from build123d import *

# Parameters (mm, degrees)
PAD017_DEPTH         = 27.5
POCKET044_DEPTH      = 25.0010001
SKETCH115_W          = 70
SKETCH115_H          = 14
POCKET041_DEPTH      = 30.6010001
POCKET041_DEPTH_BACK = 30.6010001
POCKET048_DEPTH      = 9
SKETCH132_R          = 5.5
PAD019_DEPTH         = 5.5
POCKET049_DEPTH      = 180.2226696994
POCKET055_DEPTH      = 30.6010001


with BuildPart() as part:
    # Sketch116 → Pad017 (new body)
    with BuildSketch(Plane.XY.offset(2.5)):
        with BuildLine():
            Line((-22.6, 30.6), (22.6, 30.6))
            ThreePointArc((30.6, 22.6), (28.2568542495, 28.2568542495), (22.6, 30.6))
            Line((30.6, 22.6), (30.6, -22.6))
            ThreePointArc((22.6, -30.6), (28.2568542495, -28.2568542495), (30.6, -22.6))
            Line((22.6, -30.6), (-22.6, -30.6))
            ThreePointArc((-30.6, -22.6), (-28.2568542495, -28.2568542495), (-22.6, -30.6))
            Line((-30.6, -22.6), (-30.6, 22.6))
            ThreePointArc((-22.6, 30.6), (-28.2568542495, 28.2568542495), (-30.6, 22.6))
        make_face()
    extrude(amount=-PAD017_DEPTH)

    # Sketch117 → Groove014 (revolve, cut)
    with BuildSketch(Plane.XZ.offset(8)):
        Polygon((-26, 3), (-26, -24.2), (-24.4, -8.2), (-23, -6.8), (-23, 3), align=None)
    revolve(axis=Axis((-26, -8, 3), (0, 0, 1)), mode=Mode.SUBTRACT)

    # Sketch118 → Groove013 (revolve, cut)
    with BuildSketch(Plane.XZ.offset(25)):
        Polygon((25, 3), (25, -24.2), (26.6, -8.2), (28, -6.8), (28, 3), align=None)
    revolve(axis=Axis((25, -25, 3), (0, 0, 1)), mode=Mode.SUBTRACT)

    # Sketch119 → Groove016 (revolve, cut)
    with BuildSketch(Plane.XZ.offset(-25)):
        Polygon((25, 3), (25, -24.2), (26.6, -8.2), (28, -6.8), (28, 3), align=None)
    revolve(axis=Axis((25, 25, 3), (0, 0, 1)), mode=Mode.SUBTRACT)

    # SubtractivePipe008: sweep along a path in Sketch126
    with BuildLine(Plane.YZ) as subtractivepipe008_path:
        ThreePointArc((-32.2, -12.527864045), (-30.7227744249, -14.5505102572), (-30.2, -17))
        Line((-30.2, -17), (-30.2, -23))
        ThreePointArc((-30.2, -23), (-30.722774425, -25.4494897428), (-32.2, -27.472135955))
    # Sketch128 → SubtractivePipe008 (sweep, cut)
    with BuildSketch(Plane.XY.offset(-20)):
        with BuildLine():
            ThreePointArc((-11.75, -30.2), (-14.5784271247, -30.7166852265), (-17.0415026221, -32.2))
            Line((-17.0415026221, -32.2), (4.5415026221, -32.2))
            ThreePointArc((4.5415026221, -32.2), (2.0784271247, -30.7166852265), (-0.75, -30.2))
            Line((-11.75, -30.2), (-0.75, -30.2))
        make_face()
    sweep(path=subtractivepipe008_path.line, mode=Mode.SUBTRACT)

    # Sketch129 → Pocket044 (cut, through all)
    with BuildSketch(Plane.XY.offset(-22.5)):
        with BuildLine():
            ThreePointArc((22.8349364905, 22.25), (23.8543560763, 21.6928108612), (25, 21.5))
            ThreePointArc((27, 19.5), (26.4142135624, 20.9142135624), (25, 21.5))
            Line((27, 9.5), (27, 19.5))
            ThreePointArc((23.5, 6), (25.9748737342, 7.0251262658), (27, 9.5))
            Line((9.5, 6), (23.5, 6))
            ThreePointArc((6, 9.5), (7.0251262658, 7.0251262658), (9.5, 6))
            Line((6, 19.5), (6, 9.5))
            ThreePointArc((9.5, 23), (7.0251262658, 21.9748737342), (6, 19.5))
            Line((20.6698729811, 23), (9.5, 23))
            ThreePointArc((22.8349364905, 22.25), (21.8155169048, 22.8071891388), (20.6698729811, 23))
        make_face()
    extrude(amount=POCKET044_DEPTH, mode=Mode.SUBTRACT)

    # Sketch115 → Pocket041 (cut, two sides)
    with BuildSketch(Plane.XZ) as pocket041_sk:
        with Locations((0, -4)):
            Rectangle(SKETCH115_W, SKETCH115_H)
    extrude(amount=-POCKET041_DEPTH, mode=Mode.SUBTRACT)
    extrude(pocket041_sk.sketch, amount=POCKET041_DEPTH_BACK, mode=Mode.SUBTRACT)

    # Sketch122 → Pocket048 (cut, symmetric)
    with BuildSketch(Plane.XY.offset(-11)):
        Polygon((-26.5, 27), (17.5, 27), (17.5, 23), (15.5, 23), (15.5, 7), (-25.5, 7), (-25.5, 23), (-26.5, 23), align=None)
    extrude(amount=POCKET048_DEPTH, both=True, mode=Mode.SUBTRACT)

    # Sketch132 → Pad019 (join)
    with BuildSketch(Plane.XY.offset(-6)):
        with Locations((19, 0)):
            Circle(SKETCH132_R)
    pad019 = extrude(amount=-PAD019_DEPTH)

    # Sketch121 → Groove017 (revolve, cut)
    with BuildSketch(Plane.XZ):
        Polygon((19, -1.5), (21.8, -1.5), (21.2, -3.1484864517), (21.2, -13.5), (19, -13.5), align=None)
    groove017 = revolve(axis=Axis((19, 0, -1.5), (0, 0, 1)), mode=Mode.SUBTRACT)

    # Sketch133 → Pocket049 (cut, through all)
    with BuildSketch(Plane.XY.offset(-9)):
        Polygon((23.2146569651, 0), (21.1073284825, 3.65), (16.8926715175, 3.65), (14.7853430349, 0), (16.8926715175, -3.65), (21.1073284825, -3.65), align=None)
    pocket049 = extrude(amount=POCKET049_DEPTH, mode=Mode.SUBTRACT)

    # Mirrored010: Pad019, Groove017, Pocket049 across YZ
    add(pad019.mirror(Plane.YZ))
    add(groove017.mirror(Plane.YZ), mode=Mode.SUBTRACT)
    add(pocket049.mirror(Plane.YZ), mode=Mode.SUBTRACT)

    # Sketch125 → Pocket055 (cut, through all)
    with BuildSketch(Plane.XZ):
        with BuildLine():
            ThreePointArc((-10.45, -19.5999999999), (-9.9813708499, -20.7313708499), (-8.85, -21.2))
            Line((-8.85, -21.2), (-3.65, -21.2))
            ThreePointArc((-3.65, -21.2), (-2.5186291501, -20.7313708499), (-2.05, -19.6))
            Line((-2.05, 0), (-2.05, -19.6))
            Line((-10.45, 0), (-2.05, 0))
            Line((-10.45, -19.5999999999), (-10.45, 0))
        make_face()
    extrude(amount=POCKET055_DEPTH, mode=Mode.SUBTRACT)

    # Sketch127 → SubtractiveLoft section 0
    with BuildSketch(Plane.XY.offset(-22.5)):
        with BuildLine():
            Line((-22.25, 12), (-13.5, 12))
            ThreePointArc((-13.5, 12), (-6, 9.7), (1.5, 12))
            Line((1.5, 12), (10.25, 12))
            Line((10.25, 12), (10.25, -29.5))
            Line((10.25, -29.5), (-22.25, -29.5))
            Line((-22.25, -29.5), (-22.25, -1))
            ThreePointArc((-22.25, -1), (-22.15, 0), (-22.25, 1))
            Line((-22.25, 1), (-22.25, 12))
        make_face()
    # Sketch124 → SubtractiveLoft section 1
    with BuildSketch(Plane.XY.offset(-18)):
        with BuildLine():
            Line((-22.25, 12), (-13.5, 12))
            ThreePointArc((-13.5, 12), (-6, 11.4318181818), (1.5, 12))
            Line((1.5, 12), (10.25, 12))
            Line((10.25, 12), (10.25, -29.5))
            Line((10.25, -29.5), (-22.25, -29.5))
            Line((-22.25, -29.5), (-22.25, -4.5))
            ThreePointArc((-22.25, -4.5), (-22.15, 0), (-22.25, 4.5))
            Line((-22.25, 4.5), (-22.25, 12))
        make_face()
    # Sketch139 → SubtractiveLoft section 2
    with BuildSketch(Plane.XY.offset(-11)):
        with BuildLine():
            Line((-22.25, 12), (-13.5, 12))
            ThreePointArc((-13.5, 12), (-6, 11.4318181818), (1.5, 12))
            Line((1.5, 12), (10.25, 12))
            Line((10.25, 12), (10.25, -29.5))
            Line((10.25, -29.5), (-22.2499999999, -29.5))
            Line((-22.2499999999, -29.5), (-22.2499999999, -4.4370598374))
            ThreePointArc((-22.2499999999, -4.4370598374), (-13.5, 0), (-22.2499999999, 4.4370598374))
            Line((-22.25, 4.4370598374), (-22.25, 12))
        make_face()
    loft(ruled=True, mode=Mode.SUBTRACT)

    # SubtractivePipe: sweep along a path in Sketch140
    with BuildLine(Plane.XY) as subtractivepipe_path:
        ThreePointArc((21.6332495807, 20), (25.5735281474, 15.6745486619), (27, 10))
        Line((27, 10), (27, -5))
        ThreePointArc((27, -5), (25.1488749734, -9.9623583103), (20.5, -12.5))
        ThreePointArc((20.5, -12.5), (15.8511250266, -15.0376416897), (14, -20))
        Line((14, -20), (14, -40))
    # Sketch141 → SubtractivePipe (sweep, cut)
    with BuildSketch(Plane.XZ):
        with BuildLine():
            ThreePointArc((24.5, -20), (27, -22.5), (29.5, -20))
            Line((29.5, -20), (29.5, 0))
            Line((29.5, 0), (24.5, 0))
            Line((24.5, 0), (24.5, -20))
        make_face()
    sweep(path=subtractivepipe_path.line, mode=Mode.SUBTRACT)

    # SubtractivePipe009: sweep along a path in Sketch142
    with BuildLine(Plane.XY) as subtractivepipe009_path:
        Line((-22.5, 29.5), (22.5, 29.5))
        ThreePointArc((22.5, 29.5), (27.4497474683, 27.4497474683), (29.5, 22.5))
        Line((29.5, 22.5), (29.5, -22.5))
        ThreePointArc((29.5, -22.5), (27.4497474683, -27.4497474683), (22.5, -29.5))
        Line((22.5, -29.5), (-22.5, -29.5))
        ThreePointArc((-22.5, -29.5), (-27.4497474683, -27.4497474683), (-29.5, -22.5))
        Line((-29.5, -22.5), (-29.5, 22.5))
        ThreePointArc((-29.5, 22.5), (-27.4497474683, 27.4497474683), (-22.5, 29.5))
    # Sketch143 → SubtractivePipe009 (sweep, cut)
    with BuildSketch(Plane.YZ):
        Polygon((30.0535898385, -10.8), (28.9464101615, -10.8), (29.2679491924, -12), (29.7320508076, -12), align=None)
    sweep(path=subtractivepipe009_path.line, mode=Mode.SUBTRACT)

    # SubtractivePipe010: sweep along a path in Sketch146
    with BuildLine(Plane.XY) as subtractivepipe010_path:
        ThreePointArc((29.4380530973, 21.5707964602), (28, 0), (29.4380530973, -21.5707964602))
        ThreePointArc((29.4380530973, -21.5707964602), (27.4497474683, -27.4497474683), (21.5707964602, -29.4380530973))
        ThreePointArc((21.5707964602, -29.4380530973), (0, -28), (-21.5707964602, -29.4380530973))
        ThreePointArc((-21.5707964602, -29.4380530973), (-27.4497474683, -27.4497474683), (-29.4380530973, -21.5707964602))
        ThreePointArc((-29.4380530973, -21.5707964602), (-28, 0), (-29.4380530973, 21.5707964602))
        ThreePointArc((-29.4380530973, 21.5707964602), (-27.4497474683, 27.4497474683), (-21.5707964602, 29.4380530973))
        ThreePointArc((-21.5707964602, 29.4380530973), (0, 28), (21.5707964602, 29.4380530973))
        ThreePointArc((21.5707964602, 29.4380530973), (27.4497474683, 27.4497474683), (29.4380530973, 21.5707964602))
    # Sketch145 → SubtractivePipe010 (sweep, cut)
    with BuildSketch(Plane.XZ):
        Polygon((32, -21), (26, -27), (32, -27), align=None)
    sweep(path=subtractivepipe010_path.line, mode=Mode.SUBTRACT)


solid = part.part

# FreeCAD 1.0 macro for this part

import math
import FreeCAD as App
import Part
import Sketcher

V = App.Vector
Q = App.Units.Quantity


def add_polygon(sketch, points):
    """Adds a closed chain of lines whose ends are joined by coincident constraints."""
    first, n = sketch.GeometryCount, len(points)
    for a, b in zip(points, points[1:] + points[:1]):
        sketch.addGeometry(Part.LineSegment(App.Vector(*a, 0), App.Vector(*b, 0)), False)
    for i in range(n):
        sketch.addConstraint(Sketcher.Constraint("Coincident", first + i, 2, first + (i + 1) % n, 1))

doc = App.newDocument("Part")
body = doc.addObject("PartDesign::Body", "Body")

sketch1 = doc.addObject("Sketcher::SketchObject", "Sketch")
body.addObject(sketch1)
sketch1.AttachmentSupport = (doc.XY_Plane, [""])
sketch1.MapMode = "FlatFace"
sketch1.AttachmentOffset = App.Placement(V(0, 0, 2.5), App.Rotation())
sketch1.addGeometry(Part.LineSegment(V(22.6, 30.6, 0), V(-22.6, 30.6, 0)), False)
sketch1.addGeometry(Part.ArcOfCircle(Part.Circle(V(-22.6, 22.6, 0), V(0, 0, 1), 8), math.radians(90), math.radians(180)), False)
sketch1.addGeometry(Part.LineSegment(V(-30.6, 22.6, 0), V(-30.6, -22.6, 0)), False)
sketch1.addGeometry(Part.ArcOfCircle(Part.Circle(V(-22.6, -22.6, 0), V(0, 0, 1), 8), math.radians(180), math.radians(270)), False)
sketch1.addGeometry(Part.LineSegment(V(-22.6, -30.6, 0), V(22.6, -30.6, 0)), False)
sketch1.addGeometry(Part.ArcOfCircle(Part.Circle(V(22.6, -22.6, 0), V(0, 0, 1), 8), math.radians(-90), math.radians(0)), False)
sketch1.addGeometry(Part.LineSegment(V(30.6, -22.6, 0), V(30.6, 22.6, 0)), False)
sketch1.addGeometry(Part.ArcOfCircle(Part.Circle(V(22.6, 22.6, 0), V(0, 0, 1), 8), math.radians(0), math.radians(90)), False)
sketch1.addConstraint(Sketcher.Constraint("Tangent", 0, 2, 1, 1))
sketch1.addConstraint(Sketcher.Constraint("Tangent", 1, 2, 2, 1))
sketch1.addConstraint(Sketcher.Constraint("Tangent", 2, 2, 3, 1))
sketch1.addConstraint(Sketcher.Constraint("Tangent", 3, 2, 4, 1))
sketch1.addConstraint(Sketcher.Constraint("Tangent", 4, 2, 5, 1))
sketch1.addConstraint(Sketcher.Constraint("Tangent", 5, 2, 6, 1))
sketch1.addConstraint(Sketcher.Constraint("Tangent", 6, 2, 7, 1))
sketch1.addConstraint(Sketcher.Constraint("Tangent", 7, 2, 0, 1))
sketch1.addConstraint(Sketcher.Constraint("Horizontal", 0))
sketch1.addConstraint(Sketcher.Constraint("Vertical", 2))
sketch1.addConstraint(Sketcher.Constraint("Horizontal", 4))
sketch1.addConstraint(Sketcher.Constraint("Vertical", 6))
sketch1.addConstraint(Sketcher.Constraint("Equal", 1, 3))
sketch1.addConstraint(Sketcher.Constraint("Equal", 3, 5))
sketch1.addConstraint(Sketcher.Constraint("Equal", 5, 7))
sketch1.addConstraint(Sketcher.Constraint("Symmetric", 1, 3, 5, 3, -1, 1))
sketch1.addConstraint(Sketcher.Constraint("Equal", 4, 2))
sketch1.addConstraint(Sketcher.Constraint("Radius", 1, 8.0))
sketch1.addConstraint(Sketcher.Constraint("DistanceX", 0, 2, 0, 1, 45.2))
pad1 = doc.addObject("PartDesign::Pad", "Pad")
body.addObject(pad1)
pad1.Profile = sketch1
pad1.Length = 27.5
pad1.Reversed = True

sketch2 = doc.addObject("Sketcher::SketchObject", "Sketch001")
body.addObject(sketch2)
sketch2.AttachmentSupport = (doc.XZ_Plane, [""])
sketch2.MapMode = "FlatFace"
sketch2.AttachmentOffset = App.Placement(V(0, 0, 8), App.Rotation())
add_polygon(sketch2, [(-26, 3), (-26, -24.2), (-24.4, -8.2), (-23, -6.8), (-23, 3)])
sketch2.addGeometry(Part.LineSegment(V(-26, -24.2, 0), V(-26, 3, 0)), True)
sketch2.addConstraint(Sketcher.Constraint("Vertical", 0))
sketch2.addConstraint(Sketcher.Constraint("Vertical", 3))
sketch2.addConstraint(Sketcher.Constraint("Horizontal", 4))
sketch2.addConstraint(Sketcher.Constraint("Vertical", 5))
sketch2.addConstraint(Sketcher.Constraint("Coincident", 5, 1, 0, 2))
sketch2.addConstraint(Sketcher.Constraint("Horizontal", 3, 2, 5, 2))
sketch2.addConstraint(Sketcher.Constraint("DistanceX", 4, 2, 4, 1, 3.0))
sketch2.addConstraint(Sketcher.Constraint("Angle", 2, Q("45 deg")))
sketch2.addConstraint(Sketcher.Constraint("DistanceY", 0, 2, 0, 1, 27.2))
sketch2.addConstraint(Sketcher.Constraint("DistanceY", 3, 1, 3, 2, 9.8))
sketch2.addConstraint(Sketcher.Constraint("DistanceX", 0, 2, -1, 1, 26.0))
sketch2.addConstraint(Sketcher.Constraint("DistanceY", -1, 1, 3, 2, 3.0))
sketch2.addConstraint(Sketcher.Constraint("DistanceY", 0, 2, 1, 2, 16.0))
groove = doc.addObject("PartDesign::Groove", "Groove")
body.addObject(groove)
groove.Profile = sketch2
groove.ReferenceAxis = (sketch2, ["Axis0"])
groove.Angle = 360

sketch3 = doc.addObject("Sketcher::SketchObject", "Sketch002")
body.addObject(sketch3)
sketch3.AttachmentSupport = (doc.XZ_Plane, [""])
sketch3.MapMode = "FlatFace"
sketch3.AttachmentOffset = App.Placement(V(0, 0, 25), App.Rotation())
add_polygon(sketch3, [(25, 3), (25, -24.2), (26.6, -8.2), (28, -6.8), (28, 3)])
sketch3.addGeometry(Part.LineSegment(V(25, -24.2, 0), V(25, 3, 0)), True)
sketch3.addConstraint(Sketcher.Constraint("Vertical", 0))
sketch3.addConstraint(Sketcher.Constraint("Vertical", 3))
sketch3.addConstraint(Sketcher.Constraint("Horizontal", 4))
sketch3.addConstraint(Sketcher.Constraint("Vertical", 5))
sketch3.addConstraint(Sketcher.Constraint("Coincident", 5, 1, 0, 2))
sketch3.addConstraint(Sketcher.Constraint("Horizontal", 3, 2, 5, 2))
sketch3.addConstraint(Sketcher.Constraint("DistanceX", 4, 2, 4, 1, 3.0))
sketch3.addConstraint(Sketcher.Constraint("Angle", 2, Q("45 deg")))
sketch3.addConstraint(Sketcher.Constraint("DistanceY", 0, 2, 0, 1, 27.2))
sketch3.addConstraint(Sketcher.Constraint("DistanceY", 3, 1, 3, 2, 9.8))
sketch3.addConstraint(Sketcher.Constraint("DistanceX", -1, 1, 0, 2, 25.0))
sketch3.addConstraint(Sketcher.Constraint("DistanceY", -1, 1, 3, 2, 3.0))
sketch3.addConstraint(Sketcher.Constraint("DistanceY", 0, 2, 1, 2, 16.0))
groove2 = doc.addObject("PartDesign::Groove", "Groove001")
body.addObject(groove2)
groove2.Profile = sketch3
groove2.ReferenceAxis = (sketch3, ["Axis0"])
groove2.Angle = 360

sketch4 = doc.addObject("Sketcher::SketchObject", "Sketch003")
body.addObject(sketch4)
sketch4.AttachmentSupport = (doc.XZ_Plane, [""])
sketch4.MapMode = "FlatFace"
sketch4.AttachmentOffset = App.Placement(V(0, 0, -25), App.Rotation())
add_polygon(sketch4, [(25, 3), (25, -24.2), (26.6, -8.2), (28, -6.8), (28, 3)])
sketch4.addGeometry(Part.LineSegment(V(25, -24.2, 0), V(25, 3, 0)), True)
sketch4.addConstraint(Sketcher.Constraint("Vertical", 0))
sketch4.addConstraint(Sketcher.Constraint("Vertical", 3))
sketch4.addConstraint(Sketcher.Constraint("Horizontal", 4))
sketch4.addConstraint(Sketcher.Constraint("Vertical", 5))
sketch4.addConstraint(Sketcher.Constraint("Coincident", 5, 1, 0, 2))
sketch4.addConstraint(Sketcher.Constraint("Horizontal", 3, 2, 5, 2))
sketch4.addConstraint(Sketcher.Constraint("DistanceX", 4, 2, 4, 1, 3.0))
sketch4.addConstraint(Sketcher.Constraint("Angle", 2, Q("45 deg")))
sketch4.addConstraint(Sketcher.Constraint("DistanceY", 0, 2, 0, 1, 27.2))
sketch4.addConstraint(Sketcher.Constraint("DistanceY", 3, 1, 3, 2, 9.8))
sketch4.addConstraint(Sketcher.Constraint("DistanceX", -1, 1, 0, 2, 25.0))
sketch4.addConstraint(Sketcher.Constraint("DistanceY", -1, 1, 3, 2, 3.0))
sketch4.addConstraint(Sketcher.Constraint("DistanceY", 0, 2, 1, 2, 16.0))
groove3 = doc.addObject("PartDesign::Groove", "Groove002")
body.addObject(groove3)
groove3.Profile = sketch4
groove3.ReferenceAxis = (sketch4, ["Axis0"])
groove3.Angle = 360

sketch5 = doc.addObject("Sketcher::SketchObject", "Sketch004")
body.addObject(sketch5)
sketch5.AttachmentSupport = (doc.XY_Plane, [""])
sketch5.MapMode = "FlatFace"
sketch5.AttachmentOffset = App.Placement(V(0, 0, -20), App.Rotation())
sketch5.addGeometry(Part.ArcOfCircle(Part.Circle(V(-11.75, -38.2, 0), V(0, 0, 1), 8), math.radians(90), math.radians(131.409622)), False)
sketch5.addGeometry(Part.LineSegment(V(-17.041503, -32.2, 0), V(4.541503, -32.2, 0)), False)
sketch5.addGeometry(Part.ArcOfCircle(Part.Circle(V(-0.75, -38.2, 0), V(0, 0, 1), 8), math.radians(48.590378), math.radians(90)), False)
sketch5.addGeometry(Part.LineSegment(V(-0.75, -30.2, 0), V(-11.75, -30.2, 0)), False)
sketch5.addConstraint(Sketcher.Constraint("Coincident", 0, 2, 1, 1))
sketch5.addConstraint(Sketcher.Constraint("Coincident", 1, 2, 2, 1))
sketch5.addConstraint(Sketcher.Constraint("Tangent", 2, 2, 3, 1))
sketch5.addConstraint(Sketcher.Constraint("Tangent", 3, 2, 0, 1))
sketch5.addConstraint(Sketcher.Constraint("Horizontal", 1))
sketch5.addConstraint(Sketcher.Constraint("Horizontal", 3))
sketch5.addConstraint(Sketcher.Constraint("Equal", 0, 2))
sketch5.addConstraint(Sketcher.Constraint("Radius", 0, 8.0))
sketch5.addConstraint(Sketcher.Constraint("DistanceX", 3, 2, 3, 1, 11.0))
sketch5.addConstraint(Sketcher.Constraint("DistanceY", 0, 3, 0, 2, 6.0))
sketch5.addConstraint(Sketcher.Constraint("DistanceY", 0, 3, -1, 1, 38.2))
sketch5.addConstraint(Sketcher.Constraint("DistanceX", 0, 3, -1, 1, 11.75))

sketch6 = doc.addObject("Sketcher::SketchObject", "Sketch005")
body.addObject(sketch6)
sketch6.AttachmentSupport = (doc.YZ_Plane, [""])
sketch6.MapMode = "FlatFace"
sketch6.addGeometry(Part.ArcOfCircle(Part.Circle(V(-36.2, -17, 0), V(0, 0, 1), 6), math.radians(0), math.radians(48.189685)), False)
sketch6.addGeometry(Part.LineSegment(V(-30.2, -17, 0), V(-30.2, -23, 0)), False)
sketch6.addGeometry(Part.ArcOfCircle(Part.Circle(V(-36.2, -23, 0), V(0, 0, 1), 6), math.radians(-48.189685), math.radians(0)), False)
sketch6.addConstraint(Sketcher.Constraint("Tangent", 0, 1, 1, 1))
sketch6.addConstraint(Sketcher.Constraint("Tangent", 1, 2, 2, 2))
sketch6.addConstraint(Sketcher.Constraint("Vertical", 1))
sketch6.addConstraint(Sketcher.Constraint("Equal", 0, 2))
sketch6.addConstraint(Sketcher.Constraint("Vertical", 0, 2, 2, 1))
sketch6.addConstraint(Sketcher.Constraint("Radius", 0, 6.0))
sketch6.addConstraint(Sketcher.Constraint("DistanceY", 1, 2, 1, 1, 6.0))
sketch6.addConstraint(Sketcher.Constraint("DistanceY", 0, 3, -1, 1, 17.0))
sketch6.addConstraint(Sketcher.Constraint("DistanceX", 0, 2, 0, 1, 2.0))
sketch6.addConstraint(Sketcher.Constraint("DistanceX", 0, 3, -1, 1, 36.2))
doc.recompute()

subtractivepipe = doc.addObject("PartDesign::SubtractivePipe", "SubtractivePipe")
body.addObject(subtractivepipe)
subtractivepipe.Profile = sketch5
subtractivepipe.Spine = (sketch6, ["Edge1", "Edge2", "Edge3"])

sketch7 = doc.addObject("Sketcher::SketchObject", "Sketch006")
body.addObject(sketch7)
sketch7.AttachmentSupport = (doc.XY_Plane, [""])
sketch7.MapMode = "FlatFace"
sketch7.AttachmentOffset = App.Placement(V(0, 0, -22.5), App.Rotation())
sketch7.addGeometry(Part.ArcOfCircle(Part.Circle(V(25, 25, 0), V(0, 0, 1), 3.5), math.radians(-128.213211), math.radians(-90)), False)
sketch7.addGeometry(Part.ArcOfCircle(Part.Circle(V(20.669873, 19.5, 0), V(0, 0, 1), 3.5), math.radians(51.786789), math.radians(90)), False)
sketch7.addGeometry(Part.LineSegment(V(20.669873, 23, 0), V(9.5, 23, 0)), False)
sketch7.addGeometry(Part.ArcOfCircle(Part.Circle(V(9.5, 19.5, 0), V(0, 0, 1), 3.5), math.radians(90), math.radians(180)), False)
sketch7.addGeometry(Part.LineSegment(V(6, 19.5, 0), V(6, 9.5, 0)), False)
sketch7.addGeometry(Part.ArcOfCircle(Part.Circle(V(9.5, 9.5, 0), V(0, 0, 1), 3.5), math.radians(180), math.radians(270)), False)
sketch7.addGeometry(Part.LineSegment(V(9.5, 6, 0), V(23.5, 6, 0)), False)
sketch7.addGeometry(Part.ArcOfCircle(Part.Circle(V(23.5, 9.5, 0), V(0, 0, 1), 3.5), math.radians(-90), math.radians(0)), False)
sketch7.addGeometry(Part.LineSegment(V(27, 9.5, 0), V(27, 19.5, 0)), False)
sketch7.addGeometry(Part.ArcOfCircle(Part.Circle(V(25, 19.5, 0), V(0, 0, 1), 2), math.radians(0), math.radians(90)), False)
sketch7.addConstraint(Sketcher.Constraint("Tangent", 0, 1, 1, 1))
sketch7.addConstraint(Sketcher.Constraint("Tangent", 1, 2, 2, 1))
sketch7.addConstraint(Sketcher.Constraint("Tangent", 2, 2, 3, 1))
sketch7.addConstraint(Sketcher.Constraint("Tangent", 3, 2, 4, 1))
sketch7.addConstraint(Sketcher.Constraint("Tangent", 4, 2, 5, 1))
sketch7.addConstraint(Sketcher.Constraint("Tangent", 5, 2, 6, 1))
sketch7.addConstraint(Sketcher.Constraint("Tangent", 6, 2, 7, 1))
sketch7.addConstraint(Sketcher.Constraint("Tangent", 7, 2, 8, 1))
sketch7.addConstraint(Sketcher.Constraint("Tangent", 8, 2, 9, 1))
sketch7.addConstraint(Sketcher.Constraint("Tangent", 9, 2, 0, 2))
sketch7.addConstraint(Sketcher.Constraint("Horizontal", 2))
sketch7.addConstraint(Sketcher.Constraint("Vertical", 4))
sketch7.addConstraint(Sketcher.Constraint("Horizontal", 6))
sketch7.addConstraint(Sketcher.Constraint("Vertical", 8))
sketch7.addConstraint(Sketcher.Constraint("Equal", 0, 1))
sketch7.addConstraint(Sketcher.Constraint("Equal", 1, 3))
sketch7.addConstraint(Sketcher.Constraint("Equal", 3, 5))
sketch7.addConstraint(Sketcher.Constraint("Equal", 5, 7))
sketch7.addConstraint(Sketcher.Constraint("Horizontal", 3, 3, 9, 3))
sketch7.addConstraint(Sketcher.Constraint("Vertical", 0, 3, 9, 3))
sketch7.addConstraint(Sketcher.Constraint("Radius", 9, 2.0))
sketch7.addConstraint(Sketcher.Constraint("Radius", 0, 3.5))
sketch7.addConstraint(Sketcher.Constraint("DistanceX", 6, 1, 6, 2, 14.0))
sketch7.addConstraint(Sketcher.Constraint("DistanceY", 4, 2, 4, 1, 10.0))
sketch7.addConstraint(Sketcher.Constraint("DistanceX", -1, 1, 0, 3, 25.0))
sketch7.addConstraint(Sketcher.Constraint("DistanceY", -1, 1, 0, 3, 25.0))
pocket1 = doc.addObject("PartDesign::Pocket", "Pocket")
body.addObject(pocket1)
pocket1.Profile = sketch7
pocket1.Type = "ThroughAll"
pocket1.Reversed = True

sketch8 = doc.addObject("Sketcher::SketchObject", "Sketch007")
body.addObject(sketch8)
sketch8.AttachmentSupport = (doc.XZ_Plane, [""])
sketch8.MapMode = "FlatFace"
add_polygon(sketch8, [(-35, 3), (-35, -11), (35, -11), (35, 3)])
sketch8.addConstraint(Sketcher.Constraint("Vertical", 0))
sketch8.addConstraint(Sketcher.Constraint("Horizontal", 1))
sketch8.addConstraint(Sketcher.Constraint("Vertical", 2))
sketch8.addConstraint(Sketcher.Constraint("Horizontal", 3))
sketch8.addConstraint(Sketcher.Constraint("DistanceX", 1, 1, 1, 2, 70.0))
sketch8.addConstraint(Sketcher.Constraint("DistanceY", 0, 2, 0, 1, 14.0))
sketch8.addConstraint(Sketcher.Constraint("DistanceX", 0, 2, -1, 1, 35.0))
sketch8.addConstraint(Sketcher.Constraint("DistanceY", 0, 2, -1, 1, 11.0))
pocket2 = doc.addObject("PartDesign::Pocket", "Pocket001")
body.addObject(pocket2)
pocket2.Profile = sketch8
pocket2.Type = "ThroughAll"
pocket2.Midplane = True

sketch9 = doc.addObject("Sketcher::SketchObject", "Sketch008")
body.addObject(sketch9)
sketch9.AttachmentSupport = (doc.XY_Plane, [""])
sketch9.MapMode = "FlatFace"
sketch9.AttachmentOffset = App.Placement(V(0, 0, -11), App.Rotation())
add_polygon(sketch9, [(17.5, 27), (-26.5, 27), (-26.5, 23), (-25.5, 23), (-25.5, 7), (15.5, 7), (15.5, 23), (17.5, 23)])
sketch9.addConstraint(Sketcher.Constraint("Horizontal", 0))
sketch9.addConstraint(Sketcher.Constraint("Vertical", 1))
sketch9.addConstraint(Sketcher.Constraint("Horizontal", 2))
sketch9.addConstraint(Sketcher.Constraint("Vertical", 3))
sketch9.addConstraint(Sketcher.Constraint("Horizontal", 4))
sketch9.addConstraint(Sketcher.Constraint("Vertical", 5))
sketch9.addConstraint(Sketcher.Constraint("Horizontal", 6))
sketch9.addConstraint(Sketcher.Constraint("Vertical", 7))
sketch9.addConstraint(Sketcher.Constraint("Horizontal", 2, 2, 5, 2))
sketch9.addConstraint(Sketcher.Constraint("DistanceX", 0, 2, 0, 1, 44.0))
sketch9.addConstraint(Sketcher.Constraint("DistanceX", 2, 1, 2, 2, 1.0))
sketch9.addConstraint(Sketcher.Constraint("DistanceX", 4, 1, 4, 2, 41.0))
sketch9.addConstraint(Sketcher.Constraint("DistanceY", 1, 2, 1, 1, 4.0))
sketch9.addConstraint(Sketcher.Constraint("DistanceY", 3, 2, 3, 1, 16.0))
sketch9.addConstraint(Sketcher.Constraint("DistanceY", -1, 1, 0, 2, 27.0))
sketch9.addConstraint(Sketcher.Constraint("DistanceX", 0, 2, -1, 1, 26.5))
pocket3 = doc.addObject("PartDesign::Pocket", "Pocket002")
body.addObject(pocket3)
pocket3.Profile = sketch9
pocket3.Length = 18
pocket3.Midplane = True

sketch10 = doc.addObject("Sketcher::SketchObject", "Sketch009")
body.addObject(sketch10)
sketch10.AttachmentSupport = (doc.XY_Plane, [""])
sketch10.MapMode = "FlatFace"
sketch10.AttachmentOffset = App.Placement(V(0, 0, -6), App.Rotation())
sketch10.addGeometry(Part.Circle(V(19, 0, 0), V(0, 0, 1), 5.5), False)
sketch10.addConstraint(Sketcher.Constraint("PointOnObject", 0, 3, -1))
sketch10.addConstraint(Sketcher.Constraint("Diameter", 0, 11.0))
sketch10.addConstraint(Sketcher.Constraint("DistanceX", -1, 1, 0, 3, 19.0))
pad2 = doc.addObject("PartDesign::Pad", "Pad001")
body.addObject(pad2)
pad2.Profile = sketch10
pad2.Length = 5.5
pad2.Reversed = True

sketch11 = doc.addObject("Sketcher::SketchObject", "Sketch010")
body.addObject(sketch11)
sketch11.AttachmentSupport = (doc.XZ_Plane, [""])
sketch11.MapMode = "FlatFace"
add_polygon(sketch11, [(21.8, -1.5), (19, -1.5), (19, -13.5), (21.2, -13.5), (21.2, -3.148486)])
sketch11.addGeometry(Part.LineSegment(V(19, -13.5, 0), V(19, -1.5, 0)), True)
sketch11.addConstraint(Sketcher.Constraint("Horizontal", 0))
sketch11.addConstraint(Sketcher.Constraint("Vertical", 1))
sketch11.addConstraint(Sketcher.Constraint("Horizontal", 2))
sketch11.addConstraint(Sketcher.Constraint("Vertical", 3))
sketch11.addConstraint(Sketcher.Constraint("Vertical", 5))
sketch11.addConstraint(Sketcher.Constraint("Coincident", 5, 1, 1, 2))
sketch11.addConstraint(Sketcher.Constraint("Horizontal", 4, 2, 5, 2))
sketch11.addConstraint(Sketcher.Constraint("DistanceY", 1, 2, 1, 1, 12.0))
sketch11.addConstraint(Sketcher.Constraint("Angle", 4, Q("70 deg")))
sketch11.addConstraint(Sketcher.Constraint("DistanceX", 0, 2, 0, 1, 2.8))
sketch11.addConstraint(Sketcher.Constraint("DistanceX", 2, 1, 2, 2, 2.2))
sketch11.addConstraint(Sketcher.Constraint("DistanceX", -1, 1, 0, 2, 19.0))
sketch11.addConstraint(Sketcher.Constraint("DistanceY", 0, 2, -1, 1, 1.5))
groove4 = doc.addObject("PartDesign::Groove", "Groove003")
body.addObject(groove4)
groove4.Profile = sketch11
groove4.ReferenceAxis = (sketch11, ["Axis0"])
groove4.Angle = 360

sketch12 = doc.addObject("Sketcher::SketchObject", "Sketch011")
body.addObject(sketch12)
sketch12.AttachmentSupport = (doc.XY_Plane, [""])
sketch12.MapMode = "FlatFace"
sketch12.AttachmentOffset = App.Placement(V(0, 0, -9), App.Rotation())
add_polygon(sketch12, [(23.214657, 0), (21.107328, 3.65), (16.892672, 3.65), (14.785343, 0), (16.892672, -3.65), (21.107328, -3.65)])
sketch12.addConstraint(Sketcher.Constraint("Horizontal", 1))
sketch12.addConstraint(Sketcher.Constraint("Horizontal", 4))
sketch12.addConstraint(Sketcher.Constraint("Symmetric", 1, 2, 3, 2, -1))
sketch12.addConstraint(Sketcher.Constraint("PointOnObject", 2, 2, -1))
sketch12.addConstraint(Sketcher.Constraint("PointOnObject", 5, 2, -1))
sketch12.addConstraint(Sketcher.Constraint("Parallel", 0, 3))
sketch12.addConstraint(Sketcher.Constraint("Parallel", 2, 5))
sketch12.addConstraint(Sketcher.Constraint("Angle", 0, Q("120 deg")))
sketch12.addConstraint(Sketcher.Constraint("DistanceY", 3, 2, 1, 2, 7.3))
sketch12.addConstraint(Sketcher.Constraint("DistanceX", 1, 2, 1, 1, 4.214657))
sketch12.addConstraint(Sketcher.Constraint("DistanceX", -1, 1, 0, 2, 21.107328))
pocket4 = doc.addObject("PartDesign::Pocket", "Pocket003")
body.addObject(pocket4)
pocket4.Profile = sketch12
pocket4.Type = "ThroughAll"
pocket4.Reversed = True
doc.recompute()

mirrored = doc.addObject("PartDesign::Mirrored", "Mirrored")
body.addObject(mirrored)
mirrored.Originals = [pad2, groove4, pocket4]
mirrored.MirrorPlane = (doc.YZ_Plane, [""])
body.Tip = mirrored

sketch13 = doc.addObject("Sketcher::SketchObject", "Sketch012")
body.addObject(sketch13)
sketch13.AttachmentSupport = (doc.XZ_Plane, [""])
sketch13.MapMode = "FlatFace"
sketch13.addGeometry(Part.ArcOfCircle(Part.Circle(V(-8.85, -19.6, 0), V(0, 0, 1), 1.6), math.radians(180), math.radians(270)), False)
sketch13.addGeometry(Part.LineSegment(V(-8.85, -21.2, 0), V(-3.65, -21.2, 0)), False)
sketch13.addGeometry(Part.ArcOfCircle(Part.Circle(V(-3.65, -19.6, 0), V(0, 0, 1), 1.6), math.radians(-90), math.radians(0)), False)
sketch13.addGeometry(Part.LineSegment(V(-2.05, -19.6, 0), V(-2.05, 0, 0)), False)
sketch13.addGeometry(Part.LineSegment(V(-2.05, 0, 0), V(-10.45, 0, 0)), False)
sketch13.addGeometry(Part.LineSegment(V(-10.45, 0, 0), V(-10.45, -19.6, 0)), False)
sketch13.addConstraint(Sketcher.Constraint("Tangent", 0, 2, 1, 1))
sketch13.addConstraint(Sketcher.Constraint("Tangent", 1, 2, 2, 1))
sketch13.addConstraint(Sketcher.Constraint("Tangent", 2, 2, 3, 1))
sketch13.addConstraint(Sketcher.Constraint("Coincident", 3, 2, 4, 1))
sketch13.addConstraint(Sketcher.Constraint("Coincident", 4, 2, 5, 1))
sketch13.addConstraint(Sketcher.Constraint("Tangent", 5, 2, 0, 1))
sketch13.addConstraint(Sketcher.Constraint("Horizontal", 1))
sketch13.addConstraint(Sketcher.Constraint("Vertical", 3))
sketch13.addConstraint(Sketcher.Constraint("Horizontal", 4))
sketch13.addConstraint(Sketcher.Constraint("Vertical", 5))
sketch13.addConstraint(Sketcher.Constraint("Equal", 0, 2))
sketch13.addConstraint(Sketcher.Constraint("PointOnObject", 3, 2, -1))
sketch13.addConstraint(Sketcher.Constraint("Radius", 0, 1.6))
sketch13.addConstraint(Sketcher.Constraint("DistanceX", 1, 1, 1, 2, 5.2))
sketch13.addConstraint(Sketcher.Constraint("DistanceY", 3, 1, 3, 2, 19.6))
sketch13.addConstraint(Sketcher.Constraint("DistanceX", 0, 3, -1, 1, 8.85))
pocket5 = doc.addObject("PartDesign::Pocket", "Pocket004")
body.addObject(pocket5)
pocket5.Profile = sketch13
pocket5.Type = "ThroughAll"
pocket5.Reversed = True

sketch14 = doc.addObject("Sketcher::SketchObject", "Sketch013")
body.addObject(sketch14)
sketch14.AttachmentSupport = (doc.XY_Plane, [""])
sketch14.MapMode = "FlatFace"
sketch14.AttachmentOffset = App.Placement(V(0, 0, -22.5), App.Rotation())
sketch14.addGeometry(Part.LineSegment(V(-13.5, 12, 0), V(-22.25, 12, 0)), False)
sketch14.addGeometry(Part.LineSegment(V(-22.25, 12, 0), V(-22.25, 1, 0)), False)
sketch14.addGeometry(Part.ArcOfCircle(Part.Circle(V(-27.2, 0, 0), V(0, 0, 1), 5.05), math.radians(-11.421186), math.radians(11.421186)), False)
sketch14.addGeometry(Part.LineSegment(V(-22.25, -1, 0), V(-22.25, -29.5, 0)), False)
sketch14.addGeometry(Part.LineSegment(V(-22.25, -29.5, 0), V(10.25, -29.5, 0)), False)
sketch14.addGeometry(Part.LineSegment(V(10.25, -29.5, 0), V(10.25, 12, 0)), False)
sketch14.addGeometry(Part.LineSegment(V(10.25, 12, 0), V(1.5, 12, 0)), False)
sketch14.addGeometry(Part.ArcOfCircle(Part.Circle(V(-6, 23.078261, 0), V(0, 0, 1), 13.378261), math.radians(-124.098062), math.radians(-55.901938)), False)
sketch14.addConstraint(Sketcher.Constraint("Coincident", 0, 2, 1, 1))
sketch14.addConstraint(Sketcher.Constraint("Coincident", 1, 2, 2, 2))
sketch14.addConstraint(Sketcher.Constraint("Coincident", 2, 1, 3, 1))
sketch14.addConstraint(Sketcher.Constraint("Coincident", 3, 2, 4, 1))
sketch14.addConstraint(Sketcher.Constraint("Coincident", 4, 2, 5, 1))
sketch14.addConstraint(Sketcher.Constraint("Coincident", 5, 2, 6, 1))
sketch14.addConstraint(Sketcher.Constraint("Coincident", 6, 2, 7, 2))
sketch14.addConstraint(Sketcher.Constraint("Coincident", 7, 1, 0, 1))
sketch14.addConstraint(Sketcher.Constraint("Horizontal", 0))
sketch14.addConstraint(Sketcher.Constraint("Vertical", 1))
sketch14.addConstraint(Sketcher.Constraint("Vertical", 3))
sketch14.addConstraint(Sketcher.Constraint("Horizontal", 4))
sketch14.addConstraint(Sketcher.Constraint("Vertical", 5))
sketch14.addConstraint(Sketcher.Constraint("Horizontal", 6))
sketch14.addConstraint(Sketcher.Constraint("Symmetric", 1, 2, 2, 1, -1))
sketch14.addConstraint(Sketcher.Constraint("Horizontal", 0, 2, 5, 2))
sketch14.addConstraint(Sketcher.Constraint("Equal", 0, 6))
sketch14.addConstraint(Sketcher.Constraint("DistanceY", 1, 2, 1, 1, 11.0))
sketch14.addConstraint(Sketcher.Constraint("Radius", 2, 5.05))
sketch14.addConstraint(Sketcher.Constraint("DistanceX", 4, 1, 4, 2, 32.5))
sketch14.addConstraint(Sketcher.Constraint("DistanceY", 3, 2, 3, 1, 28.5))
sketch14.addConstraint(Sketcher.Constraint("DistanceY", 5, 1, 5, 2, 41.5))
sketch14.addConstraint(Sketcher.Constraint("DistanceX", 7, 3, -1, 1, 6.0))
sketch14.addConstraint(Sketcher.Constraint("DistanceX", 7, 1, 6, 2, 15.0))
sketch14.addConstraint(Sketcher.Constraint("Radius", 7, 13.378261))

sketch15 = doc.addObject("Sketcher::SketchObject", "Sketch014")
body.addObject(sketch15)
sketch15.AttachmentSupport = (doc.XY_Plane, [""])
sketch15.MapMode = "FlatFace"
sketch15.AttachmentOffset = App.Placement(V(0, 0, -18), App.Rotation())
sketch15.addGeometry(Part.LineSegment(V(-13.5, 12, 0), V(-22.25, 12, 0)), False)
sketch15.addGeometry(Part.LineSegment(V(-22.25, 12, 0), V(-22.25, 4.5, 0)), False)
sketch15.addGeometry(Part.ArcOfCircle(Part.Circle(V(-123.45, 0, 0), V(0, 0, 1), 101.3), math.radians(-2.54606), math.radians(2.54606)), False)
sketch15.addGeometry(Part.LineSegment(V(-22.25, -4.5, 0), V(-22.25, -29.5, 0)), False)
sketch15.addGeometry(Part.LineSegment(V(-22.25, -29.5, 0), V(10.25, -29.5, 0)), False)
sketch15.addGeometry(Part.LineSegment(V(10.25, -29.5, 0), V(10.25, 12, 0)), False)
sketch15.addGeometry(Part.LineSegment(V(10.25, 12, 0), V(1.5, 12, 0)), False)
sketch15.addGeometry(Part.ArcOfCircle(Part.Circle(V(-6, 61.215909, 0), V(0, 0, 1), 49.784091), math.radians(-98.664628), math.radians(-81.335372)), False)
sketch15.addConstraint(Sketcher.Constraint("Coincident", 0, 2, 1, 1))
sketch15.addConstraint(Sketcher.Constraint("Coincident", 1, 2, 2, 2))
sketch15.addConstraint(Sketcher.Constraint("Coincident", 2, 1, 3, 1))
sketch15.addConstraint(Sketcher.Constraint("Coincident", 3, 2, 4, 1))
sketch15.addConstraint(Sketcher.Constraint("Coincident", 4, 2, 5, 1))
sketch15.addConstraint(Sketcher.Constraint("Coincident", 5, 2, 6, 1))
sketch15.addConstraint(Sketcher.Constraint("Coincident", 6, 2, 7, 2))
sketch15.addConstraint(Sketcher.Constraint("Coincident", 7, 1, 0, 1))
sketch15.addConstraint(Sketcher.Constraint("Horizontal", 0))
sketch15.addConstraint(Sketcher.Constraint("Vertical", 1))
sketch15.addConstraint(Sketcher.Constraint("Vertical", 3))
sketch15.addConstraint(Sketcher.Constraint("Horizontal", 4))
sketch15.addConstraint(Sketcher.Constraint("Vertical", 5))
sketch15.addConstraint(Sketcher.Constraint("Horizontal", 6))
sketch15.addConstraint(Sketcher.Constraint("Symmetric", 1, 2, 2, 1, -1))
sketch15.addConstraint(Sketcher.Constraint("Horizontal", 0, 2, 5, 2))
sketch15.addConstraint(Sketcher.Constraint("Equal", 0, 6))
sketch15.addConstraint(Sketcher.Constraint("Radius", 2, 101.3))
sketch15.addConstraint(Sketcher.Constraint("DistanceY", 3, 2, 3, 1, 25.0))
sketch15.addConstraint(Sketcher.Constraint("DistanceX", 4, 1, 4, 2, 32.5))
sketch15.addConstraint(Sketcher.Constraint("DistanceY", 1, 2, 1, 1, 7.5))
sketch15.addConstraint(Sketcher.Constraint("DistanceY", 5, 1, 5, 2, 41.5))
sketch15.addConstraint(Sketcher.Constraint("DistanceX", 7, 3, -1, 1, 6.0))
sketch15.addConstraint(Sketcher.Constraint("DistanceX", 7, 1, 6, 2, 15.0))
sketch15.addConstraint(Sketcher.Constraint("Radius", 7, 49.784091))

sketch16 = doc.addObject("Sketcher::SketchObject", "Sketch015")
body.addObject(sketch16)
sketch16.AttachmentSupport = (doc.XY_Plane, [""])
sketch16.MapMode = "FlatFace"
sketch16.AttachmentOffset = App.Placement(V(0, 0, -11), App.Rotation())
sketch16.addGeometry(Part.LineSegment(V(-13.5, 12, 0), V(-22.25, 12, 0)), False)
sketch16.addGeometry(Part.LineSegment(V(-22.25, 12, 0), V(-22.25, 4.43706, 0)), False)
sketch16.addGeometry(Part.ArcOfCircle(Part.Circle(V(-19, 0, 0), V(0, 0, 1), 5.5), math.radians(-126.221547), math.radians(126.221547)), False)
sketch16.addGeometry(Part.LineSegment(V(-22.25, -4.43706, 0), V(-22.25, -29.5, 0)), False)
sketch16.addGeometry(Part.LineSegment(V(-22.25, -29.5, 0), V(10.25, -29.5, 0)), False)
sketch16.addGeometry(Part.LineSegment(V(10.25, -29.5, 0), V(10.25, 12, 0)), False)
sketch16.addGeometry(Part.LineSegment(V(10.25, 12, 0), V(1.5, 12, 0)), False)
sketch16.addGeometry(Part.ArcOfCircle(Part.Circle(V(-6, 61.215909, 0), V(0, 0, 1), 49.784091), math.radians(-98.664628), math.radians(-81.335372)), False)
sketch16.addConstraint(Sketcher.Constraint("Coincident", 0, 2, 1, 1))
sketch16.addConstraint(Sketcher.Constraint("Coincident", 1, 2, 2, 2))
sketch16.addConstraint(Sketcher.Constraint("Coincident", 2, 1, 3, 1))
sketch16.addConstraint(Sketcher.Constraint("Coincident", 3, 2, 4, 1))
sketch16.addConstraint(Sketcher.Constraint("Coincident", 4, 2, 5, 1))
sketch16.addConstraint(Sketcher.Constraint("Coincident", 5, 2, 6, 1))
sketch16.addConstraint(Sketcher.Constraint("Coincident", 6, 2, 7, 2))
sketch16.addConstraint(Sketcher.Constraint("Coincident", 7, 1, 0, 1))
sketch16.addConstraint(Sketcher.Constraint("Horizontal", 0))
sketch16.addConstraint(Sketcher.Constraint("Vertical", 1))
sketch16.addConstraint(Sketcher.Constraint("Vertical", 3))
sketch16.addConstraint(Sketcher.Constraint("Horizontal", 4))
sketch16.addConstraint(Sketcher.Constraint("Vertical", 5))
sketch16.addConstraint(Sketcher.Constraint("Horizontal", 6))
sketch16.addConstraint(Sketcher.Constraint("Symmetric", 1, 2, 2, 1, -1))
sketch16.addConstraint(Sketcher.Constraint("Horizontal", 0, 2, 5, 2))
sketch16.addConstraint(Sketcher.Constraint("Equal", 0, 6))
sketch16.addConstraint(Sketcher.Constraint("Radius", 2, 5.5))
sketch16.addConstraint(Sketcher.Constraint("DistanceX", 4, 1, 4, 2, 32.5))
sketch16.addConstraint(Sketcher.Constraint("DistanceY", 5, 1, 5, 2, 41.5))
sketch16.addConstraint(Sketcher.Constraint("DistanceX", 2, 3, -1, 1, 19.0))
sketch16.addConstraint(Sketcher.Constraint("DistanceX", 7, 3, -1, 1, 6.0))
sketch16.addConstraint(Sketcher.Constraint("DistanceY", -1, 1, 0, 2, 12.0))
sketch16.addConstraint(Sketcher.Constraint("DistanceX", 7, 1, 6, 2, 15.0))
sketch16.addConstraint(Sketcher.Constraint("Radius", 7, 49.784091))

subtractiveloft = doc.addObject("PartDesign::SubtractiveLoft", "SubtractiveLoft")
body.addObject(subtractiveloft)
subtractiveloft.Profile = sketch14
subtractiveloft.Sections = [sketch15, sketch16]
subtractiveloft.Ruled = True

sketch17 = doc.addObject("Sketcher::SketchObject", "Sketch016")
body.addObject(sketch17)
sketch17.AttachmentSupport = (doc.XZ_Plane, [""])
sketch17.MapMode = "FlatFace"
sketch17.addGeometry(Part.ArcOfCircle(Part.Circle(V(27, -20, 0), V(0, 0, 1), 2.5), math.radians(180), math.radians(360)), False)
sketch17.addGeometry(Part.LineSegment(V(29.5, -20, 0), V(29.5, 0, 0)), False)
sketch17.addGeometry(Part.LineSegment(V(29.5, 0, 0), V(24.5, 0, 0)), False)
sketch17.addGeometry(Part.LineSegment(V(24.5, 0, 0), V(24.5, -20, 0)), False)
sketch17.addConstraint(Sketcher.Constraint("Tangent", 0, 2, 1, 1))
sketch17.addConstraint(Sketcher.Constraint("Coincident", 1, 2, 2, 1))
sketch17.addConstraint(Sketcher.Constraint("Coincident", 2, 2, 3, 1))
sketch17.addConstraint(Sketcher.Constraint("Tangent", 3, 2, 0, 1))
sketch17.addConstraint(Sketcher.Constraint("Vertical", 1))
sketch17.addConstraint(Sketcher.Constraint("Horizontal", 2))
sketch17.addConstraint(Sketcher.Constraint("Vertical", 3))
sketch17.addConstraint(Sketcher.Constraint("PointOnObject", 1, 2, -1))
sketch17.addConstraint(Sketcher.Constraint("Radius", 0, 2.5))
sketch17.addConstraint(Sketcher.Constraint("DistanceY", 1, 1, 1, 2, 20.0))
sketch17.addConstraint(Sketcher.Constraint("DistanceX", -1, 1, 0, 3, 27.0))

sketch18 = doc.addObject("Sketcher::SketchObject", "Sketch017")
body.addObject(sketch18)
sketch18.AttachmentSupport = (doc.XY_Plane, [""])
sketch18.MapMode = "FlatFace"
sketch18.addGeometry(Part.ArcOfCircle(Part.Circle(V(15, 10, 0), V(0, 0, 1), 12), math.radians(0), math.radians(56.44269)), False)
sketch18.addGeometry(Part.LineSegment(V(27, 10, 0), V(27, -5, 0)), False)
sketch18.addGeometry(Part.ArcOfCircle(Part.Circle(V(19.423077, -5, 0), V(0, 0, 1), 7.576923), math.radians(-81.828766), math.radians(0)), False)
sketch18.addGeometry(Part.ArcOfCircle(Part.Circle(V(21.576923, -20, 0), V(0, 0, 1), 7.576923), math.radians(98.171234), math.radians(180)), False)
sketch18.addGeometry(Part.LineSegment(V(14, -20, 0), V(14, -40, 0)), False)
sketch18.addConstraint(Sketcher.Constraint("Tangent", 0, 1, 1, 1))
sketch18.addConstraint(Sketcher.Constraint("Tangent", 1, 2, 2, 2))
sketch18.addConstraint(Sketcher.Constraint("Tangent", 2, 1, 3, 1))
sketch18.addConstraint(Sketcher.Constraint("Tangent", 3, 2, 4, 1))
sketch18.addConstraint(Sketcher.Constraint("Vertical", 1))
sketch18.addConstraint(Sketcher.Constraint("Vertical", 4))
sketch18.addConstraint(Sketcher.Constraint("Equal", 2, 3))
sketch18.addConstraint(Sketcher.Constraint("Radius", 0, 12.0))
sketch18.addConstraint(Sketcher.Constraint("DistanceY", 1, 2, 1, 1, 15.0))
sketch18.addConstraint(Sketcher.Constraint("DistanceY", 4, 2, 4, 1, 20.0))
sketch18.addConstraint(Sketcher.Constraint("DistanceX", -1, 1, 0, 3, 15.0))
sketch18.addConstraint(Sketcher.Constraint("DistanceY", -1, 1, 0, 3, 10.0))
sketch18.addConstraint(Sketcher.Constraint("DistanceY", 3, 3, -1, 1, 20.0))
sketch18.addConstraint(Sketcher.Constraint("DistanceY", -1, 1, 0, 2, 20.0))
sketch18.addConstraint(Sketcher.Constraint("DistanceX", -1, 1, 3, 2, 14.0))
doc.recompute()

subtractivepipe2 = doc.addObject("PartDesign::SubtractivePipe", "SubtractivePipe001")
body.addObject(subtractivepipe2)
subtractivepipe2.Profile = sketch17
subtractivepipe2.Spine = (sketch18, ["Edge1", "Edge2", "Edge3", "Edge4", "Edge5"])

sketch19 = doc.addObject("Sketcher::SketchObject", "Sketch018")
body.addObject(sketch19)
sketch19.AttachmentSupport = (doc.YZ_Plane, [""])
sketch19.MapMode = "FlatFace"
add_polygon(sketch19, [(30.05359, -10.8), (28.94641, -10.8), (29.267949, -12), (29.732051, -12)])
sketch19.addConstraint(Sketcher.Constraint("Horizontal", 0))
sketch19.addConstraint(Sketcher.Constraint("Horizontal", 2))
sketch19.addConstraint(Sketcher.Constraint("Equal", 1, 3))
sketch19.addConstraint(Sketcher.Constraint("Angle", 1, Q("-75 deg")))
sketch19.addConstraint(Sketcher.Constraint("DistanceY", 1, 2, -1, 1, 12.0))
sketch19.addConstraint(Sketcher.Constraint("DistanceY", 0, 2, -1, 1, 10.8))
sketch19.addConstraint(Sketcher.Constraint("DistanceX", 2, 1, 2, 2, 0.464102))
sketch19.addConstraint(Sketcher.Constraint("DistanceX", -1, 1, 0, 2, 28.94641))

sketch20 = doc.addObject("Sketcher::SketchObject", "Sketch019")
body.addObject(sketch20)
sketch20.AttachmentSupport = (doc.XY_Plane, [""])
sketch20.MapMode = "FlatFace"
sketch20.addGeometry(Part.LineSegment(V(-22.5, 29.5, 0), V(22.5, 29.5, 0)), False)
sketch20.addGeometry(Part.ArcOfCircle(Part.Circle(V(22.5, 22.5, 0), V(0, 0, 1), 7), math.radians(0), math.radians(90)), False)
sketch20.addGeometry(Part.LineSegment(V(29.5, 22.5, 0), V(29.5, -22.5, 0)), False)
sketch20.addGeometry(Part.ArcOfCircle(Part.Circle(V(22.5, -22.5, 0), V(0, 0, 1), 7), math.radians(-90), math.radians(0)), False)
sketch20.addGeometry(Part.LineSegment(V(22.5, -29.5, 0), V(-22.5, -29.5, 0)), False)
sketch20.addGeometry(Part.ArcOfCircle(Part.Circle(V(-22.5, -22.5, 0), V(0, 0, 1), 7), math.radians(180), math.radians(270)), False)
sketch20.addGeometry(Part.LineSegment(V(-29.5, -22.5, 0), V(-29.5, 22.5, 0)), False)
sketch20.addGeometry(Part.ArcOfCircle(Part.Circle(V(-22.5, 22.5, 0), V(0, 0, 1), 7), math.radians(90), math.radians(180)), False)
sketch20.addConstraint(Sketcher.Constraint("Tangent", 0, 2, 1, 2))
sketch20.addConstraint(Sketcher.Constraint("Tangent", 1, 1, 2, 1))
sketch20.addConstraint(Sketcher.Constraint("Tangent", 2, 2, 3, 2))
sketch20.addConstraint(Sketcher.Constraint("Tangent", 3, 1, 4, 1))
sketch20.addConstraint(Sketcher.Constraint("Tangent", 4, 2, 5, 2))
sketch20.addConstraint(Sketcher.Constraint("Tangent", 5, 1, 6, 1))
sketch20.addConstraint(Sketcher.Constraint("Tangent", 6, 2, 7, 2))
sketch20.addConstraint(Sketcher.Constraint("Tangent", 7, 1, 0, 1))
sketch20.addConstraint(Sketcher.Constraint("Horizontal", 0))
sketch20.addConstraint(Sketcher.Constraint("Vertical", 2))
sketch20.addConstraint(Sketcher.Constraint("Horizontal", 4))
sketch20.addConstraint(Sketcher.Constraint("Vertical", 6))
sketch20.addConstraint(Sketcher.Constraint("Equal", 1, 3))
sketch20.addConstraint(Sketcher.Constraint("Equal", 3, 5))
sketch20.addConstraint(Sketcher.Constraint("Equal", 5, 7))
sketch20.addConstraint(Sketcher.Constraint("Symmetric", 1, 3, 5, 3, -1, 1))
sketch20.addConstraint(Sketcher.Constraint("Equal", 4, 2))
sketch20.addConstraint(Sketcher.Constraint("Radius", 1, 7.0))
sketch20.addConstraint(Sketcher.Constraint("DistanceX", 0, 1, 0, 2, 45.0))
doc.recompute()

subtractivepipe3 = doc.addObject("PartDesign::SubtractivePipe", "SubtractivePipe002")
body.addObject(subtractivepipe3)
subtractivepipe3.Profile = sketch19
subtractivepipe3.Spine = (sketch20, ["Edge1", "Edge2", "Edge3", "Edge4", "Edge5", "Edge6", "Edge7", "Edge8"])

sketch21 = doc.addObject("Sketcher::SketchObject", "Sketch020")
body.addObject(sketch21)
sketch21.AttachmentSupport = (doc.XZ_Plane, [""])
sketch21.MapMode = "FlatFace"
add_polygon(sketch21, [(32, -21), (26, -27), (32, -27)])
sketch21.addConstraint(Sketcher.Constraint("Horizontal", 1))
sketch21.addConstraint(Sketcher.Constraint("Vertical", 2))
sketch21.addConstraint(Sketcher.Constraint("Equal", 1, 2))
sketch21.addConstraint(Sketcher.Constraint("DistanceX", 1, 1, 1, 2, 6.0))
sketch21.addConstraint(Sketcher.Constraint("DistanceX", -1, 1, 0, 2, 26.0))
sketch21.addConstraint(Sketcher.Constraint("DistanceY", 0, 2, -1, 1, 27.0))

sketch22 = doc.addObject("Sketcher::SketchObject", "Sketch021")
body.addObject(sketch22)
sketch22.AttachmentSupport = (doc.XY_Plane, [""])
sketch22.MapMode = "FlatFace"
sketch22.addGeometry(Part.ArcOfCircle(Part.Circle(V(190.5, 0, 0), V(0, 0, 1), 162.5), math.radians(172.37185), math.radians(187.62815)), False)
sketch22.addGeometry(Part.ArcOfCircle(Part.Circle(V(22.5, -22.5, 0), V(0, 0, 1), 7), math.radians(-97.62815), math.radians(7.62815)), False)
sketch22.addGeometry(Part.ArcOfCircle(Part.Circle(V(0, -190.5, 0), V(0, 0, 1), 162.5), math.radians(82.37185), math.radians(97.62815)), False)
sketch22.addGeometry(Part.ArcOfCircle(Part.Circle(V(-22.5, -22.5, 0), V(0, 0, 1), 7), math.radians(172.37185), math.radians(277.62815)), False)
sketch22.addGeometry(Part.ArcOfCircle(Part.Circle(V(-190.5, 0, 0), V(0, 0, 1), 162.5), math.radians(-7.62815), math.radians(7.62815)), False)
sketch22.addGeometry(Part.ArcOfCircle(Part.Circle(V(-22.5, 22.5, 0), V(0, 0, 1), 7), math.radians(82.37185), math.radians(187.62815)), False)
sketch22.addGeometry(Part.ArcOfCircle(Part.Circle(V(0, 190.5, 0), V(0, 0, 1), 162.5), math.radians(-97.62815), math.radians(-82.37185)), False)
sketch22.addGeometry(Part.ArcOfCircle(Part.Circle(V(22.5, 22.5, 0), V(0, 0, 1), 7), math.radians(-7.62815), math.radians(97.62815)), False)
sketch22.addConstraint(Sketcher.Constraint("Tangent", 0, 2, 1, 2))
sketch22.addConstraint(Sketcher.Constraint("Tangent", 1, 1, 2, 1))
sketch22.addConstraint(Sketcher.Constraint("Tangent", 2, 2, 3, 2))
sketch22.addConstraint(Sketcher.Constraint("Tangent", 3, 1, 4, 1))
sketch22.addConstraint(Sketcher.Constraint("Tangent", 4, 2, 5, 2))
sketch22.addConstraint(Sketcher.Constraint("Tangent", 5, 1, 6, 1))
sketch22.addConstraint(Sketcher.Constraint("Tangent", 6, 2, 7, 2))
sketch22.addConstraint(Sketcher.Constraint("Tangent", 7, 1, 0, 1))
sketch22.addConstraint(Sketcher.Constraint("Equal", 0, 2))
sketch22.addConstraint(Sketcher.Constraint("Equal", 1, 3))
sketch22.addConstraint(Sketcher.Constraint("Equal", 2, 4))
sketch22.addConstraint(Sketcher.Constraint("Equal", 3, 5))
sketch22.addConstraint(Sketcher.Constraint("Equal", 4, 6))
sketch22.addConstraint(Sketcher.Constraint("Equal", 5, 7))
sketch22.addConstraint(Sketcher.Constraint("Symmetric", 0, 3, 4, 3, -1, 1))
sketch22.addConstraint(Sketcher.Constraint("Symmetric", 2, 3, 6, 3, -1, 1))
sketch22.addConstraint(Sketcher.Constraint("Symmetric", 1, 3, 3, 3, -2))
sketch22.addConstraint(Sketcher.Constraint("Radius", 1, 7.0))
sketch22.addConstraint(Sketcher.Constraint("Radius", 0, 162.5))
sketch22.addConstraint(Sketcher.Constraint("DistanceX", 1, 3, 0, 3, 168.0))
sketch22.addConstraint(Sketcher.Constraint("DistanceY", 2, 3, 1, 3, 168.0))
doc.recompute()

subtractivepipe4 = doc.addObject("PartDesign::SubtractivePipe", "SubtractivePipe003")
body.addObject(subtractivepipe4)
subtractivepipe4.Profile = sketch21
subtractivepipe4.Spine = (sketch22, ["Edge1", "Edge2", "Edge3", "Edge4", "Edge5", "Edge6", "Edge7", "Edge8"])

doc.recompute()
